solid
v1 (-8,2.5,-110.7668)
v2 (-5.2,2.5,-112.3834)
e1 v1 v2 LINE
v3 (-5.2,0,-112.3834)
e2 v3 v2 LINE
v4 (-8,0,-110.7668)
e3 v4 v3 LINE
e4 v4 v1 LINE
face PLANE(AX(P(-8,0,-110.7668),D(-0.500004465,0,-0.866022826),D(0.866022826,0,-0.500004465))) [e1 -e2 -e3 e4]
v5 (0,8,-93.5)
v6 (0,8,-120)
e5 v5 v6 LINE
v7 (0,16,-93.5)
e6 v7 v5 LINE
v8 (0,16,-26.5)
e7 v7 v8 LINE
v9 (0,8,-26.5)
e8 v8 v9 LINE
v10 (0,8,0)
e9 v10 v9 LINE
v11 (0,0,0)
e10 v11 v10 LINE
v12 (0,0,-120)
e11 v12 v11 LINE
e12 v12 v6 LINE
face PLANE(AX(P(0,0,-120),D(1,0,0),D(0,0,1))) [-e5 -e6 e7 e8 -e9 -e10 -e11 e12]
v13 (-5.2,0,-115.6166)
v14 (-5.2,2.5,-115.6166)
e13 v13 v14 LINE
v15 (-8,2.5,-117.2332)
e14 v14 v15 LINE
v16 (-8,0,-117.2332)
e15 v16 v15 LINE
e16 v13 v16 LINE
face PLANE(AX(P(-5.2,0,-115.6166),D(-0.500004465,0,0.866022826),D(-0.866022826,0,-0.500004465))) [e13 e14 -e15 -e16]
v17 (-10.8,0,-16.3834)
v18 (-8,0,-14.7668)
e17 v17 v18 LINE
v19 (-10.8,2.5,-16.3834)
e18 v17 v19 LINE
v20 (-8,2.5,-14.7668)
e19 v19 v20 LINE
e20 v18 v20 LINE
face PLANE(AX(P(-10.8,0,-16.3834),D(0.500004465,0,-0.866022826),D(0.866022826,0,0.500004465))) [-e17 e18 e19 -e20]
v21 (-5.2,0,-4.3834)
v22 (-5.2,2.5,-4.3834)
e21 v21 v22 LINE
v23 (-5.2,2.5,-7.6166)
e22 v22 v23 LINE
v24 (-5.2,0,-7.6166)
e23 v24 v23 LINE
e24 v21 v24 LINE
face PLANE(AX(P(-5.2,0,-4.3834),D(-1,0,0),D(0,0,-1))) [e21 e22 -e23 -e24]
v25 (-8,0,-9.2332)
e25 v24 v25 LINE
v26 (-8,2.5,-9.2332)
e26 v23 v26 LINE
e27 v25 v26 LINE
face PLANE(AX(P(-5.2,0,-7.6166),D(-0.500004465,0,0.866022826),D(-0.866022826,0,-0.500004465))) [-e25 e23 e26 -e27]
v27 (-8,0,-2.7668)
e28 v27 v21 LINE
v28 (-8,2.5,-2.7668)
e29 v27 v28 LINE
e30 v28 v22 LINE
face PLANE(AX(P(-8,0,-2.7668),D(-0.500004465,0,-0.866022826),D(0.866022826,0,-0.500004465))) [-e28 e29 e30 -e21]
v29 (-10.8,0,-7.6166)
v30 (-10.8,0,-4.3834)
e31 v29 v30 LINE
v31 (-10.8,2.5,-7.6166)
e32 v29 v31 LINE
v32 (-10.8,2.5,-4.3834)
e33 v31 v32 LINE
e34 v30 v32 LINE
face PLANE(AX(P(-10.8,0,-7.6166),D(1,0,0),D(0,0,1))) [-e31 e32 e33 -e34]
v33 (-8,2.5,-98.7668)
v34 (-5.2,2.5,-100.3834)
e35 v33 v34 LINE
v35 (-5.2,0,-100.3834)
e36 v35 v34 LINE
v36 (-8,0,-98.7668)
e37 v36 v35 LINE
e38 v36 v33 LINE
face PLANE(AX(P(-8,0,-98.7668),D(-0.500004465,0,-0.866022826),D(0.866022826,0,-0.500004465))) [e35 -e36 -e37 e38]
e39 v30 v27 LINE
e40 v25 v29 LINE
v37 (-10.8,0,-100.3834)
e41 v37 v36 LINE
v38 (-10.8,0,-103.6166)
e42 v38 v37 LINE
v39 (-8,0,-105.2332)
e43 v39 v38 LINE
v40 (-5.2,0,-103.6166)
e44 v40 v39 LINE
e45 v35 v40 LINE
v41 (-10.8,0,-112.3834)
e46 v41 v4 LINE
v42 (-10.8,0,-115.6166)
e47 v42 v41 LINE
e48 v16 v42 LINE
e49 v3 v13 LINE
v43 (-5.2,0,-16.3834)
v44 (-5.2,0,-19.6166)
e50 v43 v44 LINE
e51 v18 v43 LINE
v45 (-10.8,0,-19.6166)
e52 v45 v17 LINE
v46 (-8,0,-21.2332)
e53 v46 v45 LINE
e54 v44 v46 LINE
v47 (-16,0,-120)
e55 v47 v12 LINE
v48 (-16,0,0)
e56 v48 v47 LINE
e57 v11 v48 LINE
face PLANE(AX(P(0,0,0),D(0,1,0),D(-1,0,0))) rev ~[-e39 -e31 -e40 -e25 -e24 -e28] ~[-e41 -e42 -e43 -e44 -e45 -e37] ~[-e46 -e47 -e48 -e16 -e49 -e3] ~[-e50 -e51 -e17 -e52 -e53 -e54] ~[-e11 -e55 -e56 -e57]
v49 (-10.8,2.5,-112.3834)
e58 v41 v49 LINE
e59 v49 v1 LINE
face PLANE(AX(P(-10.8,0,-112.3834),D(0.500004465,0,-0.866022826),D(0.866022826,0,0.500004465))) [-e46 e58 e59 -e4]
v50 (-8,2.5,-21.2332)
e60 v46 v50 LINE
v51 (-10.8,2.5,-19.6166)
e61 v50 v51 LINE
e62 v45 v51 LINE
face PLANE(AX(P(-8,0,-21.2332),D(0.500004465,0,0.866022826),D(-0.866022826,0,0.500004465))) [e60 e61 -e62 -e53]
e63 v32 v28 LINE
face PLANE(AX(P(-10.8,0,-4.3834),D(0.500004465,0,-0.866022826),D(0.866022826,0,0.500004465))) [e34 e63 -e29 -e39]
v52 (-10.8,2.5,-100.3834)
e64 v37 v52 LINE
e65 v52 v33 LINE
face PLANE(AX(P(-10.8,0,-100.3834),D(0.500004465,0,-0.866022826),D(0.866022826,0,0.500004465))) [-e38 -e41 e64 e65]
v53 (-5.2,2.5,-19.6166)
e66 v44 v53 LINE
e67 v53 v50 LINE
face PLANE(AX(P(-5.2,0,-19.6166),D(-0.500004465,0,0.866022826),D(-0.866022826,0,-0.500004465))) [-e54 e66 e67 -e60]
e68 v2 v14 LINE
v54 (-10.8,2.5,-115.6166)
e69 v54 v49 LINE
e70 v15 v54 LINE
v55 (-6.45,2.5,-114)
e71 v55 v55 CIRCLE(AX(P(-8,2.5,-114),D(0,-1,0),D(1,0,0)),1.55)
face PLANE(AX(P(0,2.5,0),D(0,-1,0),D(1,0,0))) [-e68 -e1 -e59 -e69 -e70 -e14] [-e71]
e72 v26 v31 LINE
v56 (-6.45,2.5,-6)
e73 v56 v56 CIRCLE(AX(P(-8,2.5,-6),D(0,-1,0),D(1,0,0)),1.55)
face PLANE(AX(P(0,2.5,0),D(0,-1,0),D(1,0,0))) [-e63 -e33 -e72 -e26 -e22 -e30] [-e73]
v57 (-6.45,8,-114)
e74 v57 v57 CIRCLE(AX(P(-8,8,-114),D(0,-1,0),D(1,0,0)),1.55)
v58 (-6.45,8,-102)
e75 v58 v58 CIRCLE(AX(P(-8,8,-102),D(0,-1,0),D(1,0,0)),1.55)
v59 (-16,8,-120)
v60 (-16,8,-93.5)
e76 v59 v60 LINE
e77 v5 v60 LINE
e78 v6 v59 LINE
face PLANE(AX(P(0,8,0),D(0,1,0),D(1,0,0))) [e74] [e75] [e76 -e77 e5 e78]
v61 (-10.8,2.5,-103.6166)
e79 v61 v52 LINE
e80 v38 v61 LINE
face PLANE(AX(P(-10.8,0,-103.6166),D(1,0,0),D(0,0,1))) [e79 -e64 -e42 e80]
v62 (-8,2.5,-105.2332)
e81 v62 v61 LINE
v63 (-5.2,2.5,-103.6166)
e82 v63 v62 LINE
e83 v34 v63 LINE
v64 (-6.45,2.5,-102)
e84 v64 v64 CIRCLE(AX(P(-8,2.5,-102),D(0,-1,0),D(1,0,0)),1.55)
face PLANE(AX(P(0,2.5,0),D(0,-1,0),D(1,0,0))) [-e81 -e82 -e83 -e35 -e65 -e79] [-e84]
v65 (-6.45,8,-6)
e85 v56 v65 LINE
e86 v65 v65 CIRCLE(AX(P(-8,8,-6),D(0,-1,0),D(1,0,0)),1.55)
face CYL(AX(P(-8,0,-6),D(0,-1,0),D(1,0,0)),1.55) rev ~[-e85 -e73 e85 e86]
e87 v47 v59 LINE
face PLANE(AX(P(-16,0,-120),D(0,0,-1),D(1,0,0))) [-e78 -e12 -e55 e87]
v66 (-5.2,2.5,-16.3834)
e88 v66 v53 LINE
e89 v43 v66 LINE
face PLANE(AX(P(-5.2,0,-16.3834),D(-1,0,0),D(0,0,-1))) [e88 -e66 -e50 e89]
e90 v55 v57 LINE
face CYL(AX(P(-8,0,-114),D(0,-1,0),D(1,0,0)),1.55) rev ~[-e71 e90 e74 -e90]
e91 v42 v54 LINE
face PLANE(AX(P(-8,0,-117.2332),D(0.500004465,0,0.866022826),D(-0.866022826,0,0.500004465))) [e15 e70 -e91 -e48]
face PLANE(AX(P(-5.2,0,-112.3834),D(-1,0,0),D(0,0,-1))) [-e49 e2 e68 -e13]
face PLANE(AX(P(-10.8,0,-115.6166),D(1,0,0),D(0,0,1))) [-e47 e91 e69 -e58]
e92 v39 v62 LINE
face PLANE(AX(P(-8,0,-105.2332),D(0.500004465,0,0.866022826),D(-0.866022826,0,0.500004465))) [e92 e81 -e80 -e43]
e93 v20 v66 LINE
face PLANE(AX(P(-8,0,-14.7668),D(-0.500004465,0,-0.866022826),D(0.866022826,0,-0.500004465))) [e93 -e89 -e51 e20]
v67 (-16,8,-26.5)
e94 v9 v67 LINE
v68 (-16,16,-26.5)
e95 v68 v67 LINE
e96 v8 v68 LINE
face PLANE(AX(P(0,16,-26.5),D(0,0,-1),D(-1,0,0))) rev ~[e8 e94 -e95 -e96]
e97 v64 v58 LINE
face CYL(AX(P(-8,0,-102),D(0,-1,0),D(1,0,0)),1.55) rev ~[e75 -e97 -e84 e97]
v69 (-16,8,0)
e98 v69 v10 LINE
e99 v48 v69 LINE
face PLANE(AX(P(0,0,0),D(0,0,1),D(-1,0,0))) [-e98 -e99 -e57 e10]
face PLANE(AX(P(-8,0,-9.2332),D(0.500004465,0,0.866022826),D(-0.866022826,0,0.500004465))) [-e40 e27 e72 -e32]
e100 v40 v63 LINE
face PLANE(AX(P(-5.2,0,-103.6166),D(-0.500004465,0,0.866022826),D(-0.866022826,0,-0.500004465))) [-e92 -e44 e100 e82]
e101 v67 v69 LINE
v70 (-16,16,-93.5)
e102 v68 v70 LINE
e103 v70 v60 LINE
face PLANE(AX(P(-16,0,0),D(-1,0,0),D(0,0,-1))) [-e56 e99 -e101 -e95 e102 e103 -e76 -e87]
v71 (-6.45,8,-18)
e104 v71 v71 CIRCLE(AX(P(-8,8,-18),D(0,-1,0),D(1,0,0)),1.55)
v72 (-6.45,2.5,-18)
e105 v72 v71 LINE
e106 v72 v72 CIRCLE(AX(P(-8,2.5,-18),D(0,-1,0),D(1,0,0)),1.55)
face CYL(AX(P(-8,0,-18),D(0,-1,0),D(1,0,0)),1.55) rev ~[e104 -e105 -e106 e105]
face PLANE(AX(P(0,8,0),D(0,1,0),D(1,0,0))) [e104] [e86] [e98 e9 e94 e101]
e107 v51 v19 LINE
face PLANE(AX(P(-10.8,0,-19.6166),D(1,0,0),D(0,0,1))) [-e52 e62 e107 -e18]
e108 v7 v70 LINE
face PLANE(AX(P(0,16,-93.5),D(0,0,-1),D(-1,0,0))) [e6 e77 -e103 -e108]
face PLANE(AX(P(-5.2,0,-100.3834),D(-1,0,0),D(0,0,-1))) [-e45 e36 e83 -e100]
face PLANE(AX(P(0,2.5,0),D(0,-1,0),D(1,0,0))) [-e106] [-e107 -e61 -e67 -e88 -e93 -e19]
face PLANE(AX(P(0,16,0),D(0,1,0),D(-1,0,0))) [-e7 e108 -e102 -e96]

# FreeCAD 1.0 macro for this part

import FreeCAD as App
import Part
import Sketcher
from FreeCAD import Vector
Q = App.Units.Quantity


def add_polygon(sketch, points):
    """Adds a closed chain of lines whose ends are joined by coincident constraints."""
    first, n = sketch.GeometryCount, len(points)
    for a, b in zip(points, points[1:] + points[:1]):
        sketch.addGeometry(Part.LineSegment(App.Vector(*a, 0), App.Vector(*b, 0)), False)
    for i in range(n):
        sketch.addConstraint(Sketcher.Constraint("Coincident", first + i, 2, first + (i + 1) % n, 1))

doc = App.newDocument("Part")
body = doc.addObject("PartDesign::Body", "Body")

# Sketch on XZ plane
sketch1 = doc.addObject("Sketcher::SketchObject", "Sketch")
body.addObject(sketch1)
sketch1.AttachmentSupport = (doc.XZ_Plane, [""])
sketch1.MapMode = "FlatFace"
add_polygon(sketch1, [(-16, 0), (0, 0), (0, -120), (-16, -120)])  # lines 0-3
sketch1.addConstraint(Sketcher.Constraint("Horizontal", 0))
sketch1.addConstraint(Sketcher.Constraint("Vertical", 1))
sketch1.addConstraint(Sketcher.Constraint("Horizontal", 2))
sketch1.addConstraint(Sketcher.Constraint("Vertical", 3))
sketch1.addConstraint(Sketcher.Constraint("Coincident", 0, 2, -1, 1))
sketch1.addConstraint(Sketcher.Constraint("DistanceX", 0, 1, 0, 2, 16.0))
sketch1.addConstraint(Sketcher.Constraint("DistanceY", 1, 2, 1, 1, 120.0))
pad1 = doc.addObject("PartDesign::Pad", "Pad")
body.addObject(pad1)
pad1.Profile = sketch1
pad1.Length = 16
pad1.Reversed = True

# Sketch on XZ plane
sketch2 = doc.addObject("Sketcher::SketchObject", "Sketch001")
body.addObject(sketch2)
sketch2.AttachmentSupport = (doc.XZ_Plane, [""])
sketch2.MapMode = "FlatFace"
sketch2.AttachmentOffset = App.Placement(Vector(0, 0, -16), App.Rotation())
add_polygon(sketch2, [(0, -94), (0, -120), (-16, -120), (-16, -94)])  # lines 0-3
add_polygon(sketch2, [(0, 0), (0, -26), (-16, -26), (-16, 0)])  # lines 4-7
sketch2.addConstraint(Sketcher.Constraint("Vertical", 0))
sketch2.addConstraint(Sketcher.Constraint("Horizontal", 1))
sketch2.addConstraint(Sketcher.Constraint("Vertical", 2))
sketch2.addConstraint(Sketcher.Constraint("Horizontal", 3))
sketch2.addConstraint(Sketcher.Constraint("Vertical", 4))
sketch2.addConstraint(Sketcher.Constraint("Horizontal", 5))
sketch2.addConstraint(Sketcher.Constraint("Vertical", 6))
sketch2.addConstraint(Sketcher.Constraint("Horizontal", 7))
sketch2.addConstraint(Sketcher.Constraint("Coincident", 7, 2, -1, 1))
sketch2.addConstraint(Sketcher.Constraint("PointOnObject", 0, 2, -2))
sketch2.addConstraint(Sketcher.Constraint("Vertical", 2, 2, 5, 2))
sketch2.addConstraint(Sketcher.Constraint("Equal", 2, 4))
sketch2.addConstraint(Sketcher.Constraint("DistanceY", 0, 2, 0, 1, 26.5))
sketch2.addConstraint(Sketcher.Constraint("DistanceX", 1, 2, 1, 1, 16.0))
sketch2.addConstraint(Sketcher.Constraint("DistanceY", 0, 2, -1, 1, 120.0))
pocket1 = doc.addObject("PartDesign::Pocket", "Pocket")
body.addObject(pocket1)
pocket1.Profile = sketch2
pocket1.Length = 8
pocket1.Reversed = True

# Sketch on XZ plane
sketch3 = doc.addObject("Sketcher::SketchObject", "Sketch002")
body.addObject(sketch3)
sketch3.AttachmentSupport = (doc.XZ_Plane, [""])
sketch3.MapMode = "FlatFace"
sketch3.addGeometry(Part.Circle(Vector(-8, -6, 0), Vector(0, 0, 1), 1.6), False)
sketch3.addGeometry(Part.Circle(Vector(-8, -18, 0), Vector(0, 0, 1), 1.6), False)
sketch3.addGeometry(Part.Circle(Vector(-8, -114, 0), Vector(0, 0, 1), 1.6), False)
sketch3.addGeometry(Part.Circle(Vector(-8, -102, 0), Vector(0, 0, 1), 1.6), False)
sketch3.addConstraint(Sketcher.Constraint("Equal", 0, 1))
sketch3.addConstraint(Sketcher.Constraint("Equal", 1, 2))
sketch3.addConstraint(Sketcher.Constraint("Equal", 2, 3))
sketch3.addConstraint(Sketcher.Constraint("Vertical", 0, 3, 1, 3))
sketch3.addConstraint(Sketcher.Constraint("Vertical", 1, 3, 2, 3))
sketch3.addConstraint(Sketcher.Constraint("Vertical", 2, 3, 3, 3))
sketch3.addConstraint(Sketcher.Constraint("Diameter", 0, 3.1))
sketch3.addConstraint(Sketcher.Constraint("DistanceX", 0, 3, -1, 1, 8.0))
sketch3.addConstraint(Sketcher.Constraint("DistanceY", 0, 3, -1, 1, 6.0))
sketch3.addConstraint(Sketcher.Constraint("DistanceY", 1, 3, 0, 3, 12.0))
sketch3.addConstraint(Sketcher.Constraint("DistanceY", 2, 3, 3, 3, 12.0))
sketch3.addConstraint(Sketcher.Constraint("DistanceY", 2, 3, -1, 1, 114.0))
pocket2 = doc.addObject("PartDesign::Pocket", "Pocket001")
body.addObject(pocket2)
pocket2.Profile = sketch3
pocket2.Type = "ThroughAll"

# Sketch on XZ plane
sketch4 = doc.addObject("Sketcher::SketchObject", "Sketch003")
body.addObject(sketch4)
sketch4.AttachmentSupport = (doc.XZ_Plane, [""])
sketch4.MapMode = "FlatFace"
add_polygon(sketch4, [(-5.2, -4.4), (-8, -2.8), (-10.8, -4.4), (-10.8, -7.6), (-8, -9.2), (-5.2, -7.6)])  # lines 0-5
sketch4.addGeometry(Part.Circle(Vector(-8, -6, 0), Vector(0, 0, 1), 1.6), False)  # 6
add_polygon(sketch4, [(-5.2, -16.4), (-8, -14.8), (-10.8, -16.4), (-10.8, -19.6), (-8, -21.2), (-5.2, -19.6)])  # lines 7-12
sketch4.addGeometry(Part.Circle(Vector(-8, -18, 0), Vector(0, 0, 1), 1.6), False)  # 13
add_polygon(sketch4, [(-5.2, -100.4), (-8, -98.8), (-10.8, -100.4), (-10.8, -103.6), (-8, -105.2), (-5.2, -103.6)])  # lines 14-19
sketch4.addGeometry(Part.Circle(Vector(-8, -102, 0), Vector(0, 0, 1), 1.6), False)  # 20
add_polygon(sketch4, [(-5.2, -112.4), (-8, -110.8), (-10.8, -112.4), (-10.8, -115.6), (-8, -117.2), (-5.2, -115.6)])  # lines 21-26
sketch4.addGeometry(Part.Circle(Vector(-8, -114, 0), Vector(0, 0, 1), 1.6), False)  # 27
sketch4.addConstraint(Sketcher.Constraint("Vertical", 2))
sketch4.addConstraint(Sketcher.Constraint("Vertical", 5))
sketch4.addConstraint(Sketcher.Constraint("Vertical", 9))
sketch4.addConstraint(Sketcher.Constraint("Vertical", 12))
sketch4.addConstraint(Sketcher.Constraint("Vertical", 16))
sketch4.addConstraint(Sketcher.Constraint("Vertical", 19))
sketch4.addConstraint(Sketcher.Constraint("Vertical", 23))
sketch4.addConstraint(Sketcher.Constraint("Vertical", 26))
sketch4.addConstraint(Sketcher.Constraint("Equal", 6, 13))
sketch4.addConstraint(Sketcher.Constraint("Equal", 13, 20))
sketch4.addConstraint(Sketcher.Constraint("Equal", 20, 27))
sketch4.addConstraint(Sketcher.Constraint("Parallel", 0, 3))
sketch4.addConstraint(Sketcher.Constraint("Parallel", 1, 4))
sketch4.addConstraint(Sketcher.Constraint("Parallel", 3, 7))
sketch4.addConstraint(Sketcher.Constraint("Parallel", 4, 8))
sketch4.addConstraint(Sketcher.Constraint("Parallel", 7, 10))
sketch4.addConstraint(Sketcher.Constraint("Parallel", 8, 11))
sketch4.addConstraint(Sketcher.Constraint("Parallel", 10, 14))
sketch4.addConstraint(Sketcher.Constraint("Parallel", 11, 15))
sketch4.addConstraint(Sketcher.Constraint("Parallel", 14, 17))
sketch4.addConstraint(Sketcher.Constraint("Parallel", 15, 18))
sketch4.addConstraint(Sketcher.Constraint("Parallel", 17, 21))
sketch4.addConstraint(Sketcher.Constraint("Parallel", 18, 22))
sketch4.addConstraint(Sketcher.Constraint("Parallel", 21, 24))
sketch4.addConstraint(Sketcher.Constraint("Parallel", 22, 25))
sketch4.addConstraint(Sketcher.Constraint("Horizontal", 2, 2, 4, 2))
sketch4.addConstraint(Sketcher.Constraint("Horizontal", 1, 2, 5, 2))
sketch4.addConstraint(Sketcher.Constraint("Horizontal", 9, 2, 11, 2))
sketch4.addConstraint(Sketcher.Constraint("Horizontal", 8, 2, 12, 2))
sketch4.addConstraint(Sketcher.Constraint("Horizontal", 16, 2, 18, 2))
sketch4.addConstraint(Sketcher.Constraint("Horizontal", 15, 2, 19, 2))
sketch4.addConstraint(Sketcher.Constraint("Horizontal", 23, 2, 25, 2))
sketch4.addConstraint(Sketcher.Constraint("Horizontal", 22, 2, 26, 2))
sketch4.addConstraint(Sketcher.Constraint("Vertical", 6, 3, 13, 3))
sketch4.addConstraint(Sketcher.Constraint("Vertical", 13, 3, 20, 3))
sketch4.addConstraint(Sketcher.Constraint("Vertical", 20, 3, 27, 3))
sketch4.addConstraint(Sketcher.Constraint("Vertical", 27, 3, 0, 2))
sketch4.addConstraint(Sketcher.Constraint("Vertical", 0, 2, 3, 2))
sketch4.addConstraint(Sketcher.Constraint("Vertical", 3, 2, 7, 2))
sketch4.addConstraint(Sketcher.Constraint("Vertical", 2, 2, 8, 2))
sketch4.addConstraint(Sketcher.Constraint("Vertical", 10, 2, 14, 2))
sketch4.addConstraint(Sketcher.Constraint("Vertical", 9, 2, 15, 2))
sketch4.addConstraint(Sketcher.Constraint("Vertical", 17, 2, 21, 2))
sketch4.addConstraint(Sketcher.Constraint("Vertical", 16, 2, 22, 2))
sketch4.addConstraint(Sketcher.Constraint("Equal", 5, 9))
sketch4.addConstraint(Sketcher.Constraint("Equal", 12, 16))
sketch4.addConstraint(Sketcher.Constraint("Equal", 19, 23))
sketch4.addConstraint(Sketcher.Constraint("Diameter", 6, 3.1))
sketch4.addConstraint(Sketcher.Constraint("DistanceX", 2, 2, 4, 2, 5.6))
sketch4.addConstraint(Sketcher.Constraint("Angle", 0, Q("149.9997 deg")))
sketch4.addConstraint(Sketcher.Constraint("DistanceX", 6, 3, -1, 1, 8.0))
sketch4.addConstraint(Sketcher.Constraint("DistanceY", 6, 3, -1, 1, 6.0))
sketch4.addConstraint(Sketcher.Constraint("DistanceY", 13, 3, -1, 1, 18.0))
sketch4.addConstraint(Sketcher.Constraint("DistanceY", 20, 3, -1, 1, 102.0))
sketch4.addConstraint(Sketcher.Constraint("DistanceY", 27, 3, -1, 1, 114.0))
sketch4.addConstraint(Sketcher.Constraint("DistanceY", 9, 2, 2, 2, 12.0))
sketch4.addConstraint(Sketcher.Constraint("DistanceY", 23, 2, 16, 2, 12.0))
sketch4.addConstraint(Sketcher.Constraint("DistanceY", 2, 2, 2, 1, 3.2332))
sketch4.addConstraint(Sketcher.Constraint("DistanceY", 0, 2, -1, 1, 2.7668))
sketch4.addConstraint(Sketcher.Constraint("DistanceY", 14, 2, -1, 1, 98.7668))
pocket3 = doc.addObject("PartDesign::Pocket", "Pocket002")
body.addObject(pocket3)
pocket3.Profile = sketch4
pocket3.Length = 2.5

doc.recompute()
